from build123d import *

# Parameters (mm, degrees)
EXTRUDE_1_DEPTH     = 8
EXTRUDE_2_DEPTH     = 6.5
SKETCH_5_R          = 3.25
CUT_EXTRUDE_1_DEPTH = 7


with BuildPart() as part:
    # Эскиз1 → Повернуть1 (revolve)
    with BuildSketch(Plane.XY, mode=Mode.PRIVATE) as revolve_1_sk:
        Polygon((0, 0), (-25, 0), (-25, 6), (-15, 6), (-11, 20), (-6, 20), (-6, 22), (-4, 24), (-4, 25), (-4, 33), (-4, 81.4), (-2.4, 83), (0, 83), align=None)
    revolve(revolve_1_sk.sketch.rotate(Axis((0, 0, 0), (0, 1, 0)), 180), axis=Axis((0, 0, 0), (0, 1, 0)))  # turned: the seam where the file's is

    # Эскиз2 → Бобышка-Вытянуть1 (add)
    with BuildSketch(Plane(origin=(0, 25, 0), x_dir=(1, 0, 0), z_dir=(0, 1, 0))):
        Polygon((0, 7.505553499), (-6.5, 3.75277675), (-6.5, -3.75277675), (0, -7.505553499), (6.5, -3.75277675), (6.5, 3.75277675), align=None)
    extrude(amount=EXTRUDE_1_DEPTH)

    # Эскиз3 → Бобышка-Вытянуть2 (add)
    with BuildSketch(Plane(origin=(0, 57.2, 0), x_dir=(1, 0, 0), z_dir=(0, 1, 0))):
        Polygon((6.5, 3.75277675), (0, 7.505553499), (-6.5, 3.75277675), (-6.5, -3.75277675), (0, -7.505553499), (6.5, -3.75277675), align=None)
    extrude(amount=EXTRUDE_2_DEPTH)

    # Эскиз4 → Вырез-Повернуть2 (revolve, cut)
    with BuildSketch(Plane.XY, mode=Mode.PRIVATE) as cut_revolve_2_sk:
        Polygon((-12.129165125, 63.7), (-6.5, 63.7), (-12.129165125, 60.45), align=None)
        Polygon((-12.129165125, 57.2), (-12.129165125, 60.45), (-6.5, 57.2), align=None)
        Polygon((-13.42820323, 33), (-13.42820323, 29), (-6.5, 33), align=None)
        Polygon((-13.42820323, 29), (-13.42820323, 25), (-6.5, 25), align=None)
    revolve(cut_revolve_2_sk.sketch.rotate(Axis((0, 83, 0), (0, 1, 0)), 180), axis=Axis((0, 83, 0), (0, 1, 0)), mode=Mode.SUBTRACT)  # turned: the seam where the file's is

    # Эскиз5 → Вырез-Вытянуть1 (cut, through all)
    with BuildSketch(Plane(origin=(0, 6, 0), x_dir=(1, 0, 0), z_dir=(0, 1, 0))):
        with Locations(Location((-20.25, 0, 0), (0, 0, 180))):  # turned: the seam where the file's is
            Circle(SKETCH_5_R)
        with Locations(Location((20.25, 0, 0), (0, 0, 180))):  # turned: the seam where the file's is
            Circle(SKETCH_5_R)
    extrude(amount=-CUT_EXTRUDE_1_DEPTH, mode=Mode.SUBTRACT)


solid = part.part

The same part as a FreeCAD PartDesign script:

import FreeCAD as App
import Part
import Sketcher
Q = App.Units.Quantity

doc = App.newDocument("Part")
body = doc.addObject("PartDesign::Body", "Body")

sketch1 = doc.addObject("Sketcher::SketchObject", "Sketch")
body.addObject(sketch1)
sketch1.AttachmentSupport = (doc.XY_Plane, [""])
sketch1.MapMode = "FlatFace"
sketch1.addGeometry([
    Part.LineSegment(App.Vector(-25, 0, 0), App.Vector(0, 0, 0)),
    Part.LineSegment(App.Vector(0, 0, 0), App.Vector(0, 83, 0)),
    Part.LineSegment(App.Vector(0, 83, 0), App.Vector(-2.4, 83, 0)),
    Part.LineSegment(App.Vector(-2.4, 83, 0), App.Vector(-4, 81.4, 0)),
    Part.LineSegment(App.Vector(-4, 81.4, 0), App.Vector(-4, 24, 0)),
    Part.LineSegment(App.Vector(-4, 24, 0), App.Vector(-6, 22, 0)),
    Part.LineSegment(App.Vector(-6, 22, 0), App.Vector(-6, 20, 0)),
    Part.LineSegment(App.Vector(-6, 20, 0), App.Vector(-11, 20, 0)),
    Part.LineSegment(App.Vector(-11, 20, 0), App.Vector(-15, 6, 0)),
    Part.LineSegment(App.Vector(-15, 6, 0), App.Vector(-25, 6, 0)),
    Part.LineSegment(App.Vector(-25, 6, 0), App.Vector(-25, 0, 0)),
], False)
sketch1.addConstraint([
    Sketcher.Constraint("Coincident", 0, 2, 1, 1),
    Sketcher.Constraint("Coincident", 1, 2, 2, 1),
    Sketcher.Constraint("Coincident", 2, 2, 3, 1),
    Sketcher.Constraint("Coincident", 3, 2, 4, 1),
    Sketcher.Constraint("Coincident", 4, 2, 5, 1),
    Sketcher.Constraint("Coincident", 5, 2, 6, 1),
    Sketcher.Constraint("Coincident", 6, 2, 7, 1),
    Sketcher.Constraint("Coincident", 7, 2, 8, 1),
    Sketcher.Constraint("Coincident", 8, 2, 9, 1),
    Sketcher.Constraint("Coincident", 9, 2, 10, 1),
    Sketcher.Constraint("Coincident", 10, 2, 0, 1),
    Sketcher.Constraint("Horizontal", 0),
    Sketcher.Constraint("Vertical", 1),
    Sketcher.Constraint("Horizontal", 2),
    Sketcher.Constraint("Vertical", 4),
    Sketcher.Constraint("Vertical", 6),
    Sketcher.Constraint("Horizontal", 7),
    Sketcher.Constraint("Horizontal", 9),
    Sketcher.Constraint("Vertical", 10),
    Sketcher.Constraint("Coincident", 0, 2, -1, 1),
    Sketcher.Constraint("Parallel", 3, 5),
    Sketcher.Constraint("DistanceX", 0, 1, 0, 2, Q("25 mm")),
    Sketcher.Constraint("DistanceX", 7, 2, 7, 1, Q("5 mm")),
    Sketcher.Constraint("DistanceX", 9, 2, 9, 1, Q("10 mm")),
    Sketcher.Constraint("DistanceY", 1, 1, 1, 2, Q("83 mm")),
    Sketcher.Constraint("DistanceY", 6, 2, 6, 1, Q("2 mm")),
    Sketcher.Constraint("DistanceY", 10, 2, 10, 1, Q("6 mm")),
    Sketcher.Constraint("Angle", 3, Q("-135 deg")),
    Sketcher.Constraint("DistanceX", 2, 2, 2, 1, Q("2.4 mm")),
    Sketcher.Constraint("DistanceY", 4, 2, 4, 1, Q("57.4 mm")),
    Sketcher.Constraint("DistanceX", 3, 2, -1, 1, Q("4 mm")),
    Sketcher.Constraint("DistanceX", 5, 2, -1, 1, Q("6 mm")),
])
revolution = doc.addObject("PartDesign::Revolution", "Revolution")
body.addObject(revolution)
revolution.Profile = sketch1
revolution.ReferenceAxis = (sketch1, ["V_Axis"])
revolution.Angle = 360

sketch2 = doc.addObject("Sketcher::SketchObject", "Sketch001")
body.addObject(sketch2)
sketch2.AttachmentSupport = (doc.XZ_Plane, [""])
sketch2.MapMode = "FlatFace"
sketch2.AttachmentOffset = App.Placement(App.Vector(0, 0, -25), App.Rotation())
sketch2.addGeometry([
    Part.LineSegment(App.Vector(0, -8, 0), App.Vector(-6, -4, 0)),
    Part.LineSegment(App.Vector(-6, -4, 0), App.Vector(-6, 4, 0)),
    Part.LineSegment(App.Vector(-6, 4, 0), App.Vector(0, 8, 0)),
    Part.LineSegment(App.Vector(0, 8, 0), App.Vector(6, 4, 0)),
    Part.LineSegment(App.Vector(6, 4, 0), App.Vector(6, -4, 0)),
    Part.LineSegment(App.Vector(6, -4, 0), App.Vector(0, -8, 0)),
], False)
sketch2.addConstraint([
    Sketcher.Constraint("Coincident", 0, 2, 1, 1),
    Sketcher.Constraint("Coincident", 1, 2, 2, 1),
    Sketcher.Constraint("Coincident", 2, 2, 3, 1),
    Sketcher.Constraint("Coincident", 3, 2, 4, 1),
    Sketcher.Constraint("Coincident", 4, 2, 5, 1),
    Sketcher.Constraint("Coincident", 5, 2, 0, 1),
    Sketcher.Constraint("Vertical", 1),
    Sketcher.Constraint("Vertical", 4),
    Sketcher.Constraint("Symmetric", 0, 2, 3, 2, -1, 1),
    Sketcher.Constraint("Symmetric", 2, 2, 5, 2, -1, 1),
    Sketcher.Constraint("PointOnObject", 2, 2, -2),
    Sketcher.Constraint("Parallel", 2, 5),
    Sketcher.Constraint("Horizontal", 1, 2, 3, 2),
    Sketcher.Constraint("Angle", 0, Q("150 deg")),
    Sketcher.Constraint("DistanceX", 1, 2, 3, 2, Q("13 mm")),
    Sketcher.Constraint("DistanceY", 1, 1, 1, 2, Q("7.505554 mm")),
])
pad1 = doc.addObject("PartDesign::Pad", "Pad")
body.addObject(pad1)
pad1.Profile = sketch2
pad1.Length = 8
pad1.Reversed = True

sketch3 = doc.addObject("Sketcher::SketchObject", "Sketch002")
body.addObject(sketch3)
sketch3.AttachmentSupport = (doc.XZ_Plane, [""])
sketch3.MapMode = "FlatFace"
sketch3.AttachmentOffset = App.Placement(App.Vector(0, 0, -57.2), App.Rotation())
sketch3.addGeometry([
    Part.LineSegment(App.Vector(6, -4, 0), App.Vector(0, -8, 0)),
    Part.LineSegment(App.Vector(0, -8, 0), App.Vector(-6, -4, 0)),
    Part.LineSegment(App.Vector(-6, -4, 0), App.Vector(-6, 4, 0)),
    Part.LineSegment(App.Vector(-6, 4, 0), App.Vector(0, 8, 0)),
    Part.LineSegment(App.Vector(0, 8, 0), App.Vector(6, 4, 0)),
    Part.LineSegment(App.Vector(6, 4, 0), App.Vector(6, -4, 0)),
], False)
sketch3.addConstraint([
    Sketcher.Constraint("Coincident", 0, 2, 1, 1),
    Sketcher.Constraint("Coincident", 1, 2, 2, 1),
    Sketcher.Constraint("Coincident", 2, 2, 3, 1),
    Sketcher.Constraint("Coincident", 3, 2, 4, 1),
    Sketcher.Constraint("Coincident", 4, 2, 5, 1),
    Sketcher.Constraint("Coincident", 5, 2, 0, 1),
    Sketcher.Constraint("Vertical", 2),
    Sketcher.Constraint("Vertical", 5),
    Sketcher.Constraint("Symmetric", 0, 2, 3, 2, -1, 1),
    Sketcher.Constraint("Symmetric", 1, 2, 4, 2, -1, 1),
    Sketcher.Constraint("PointOnObject", 0, 2, -2),
    Sketcher.Constraint("Parallel", 0, 3),
    Sketcher.Constraint("Horizontal", 2, 2, 4, 2),
    Sketcher.Constraint("Angle", 0, Q("-150 deg")),
    Sketcher.Constraint("DistanceX", 2, 2, 4, 2, Q("13 mm")),
    Sketcher.Constraint("DistanceY", 2, 1, 2, 2, Q("7.505554 mm")),
])
pad2 = doc.addObject("PartDesign::Pad", "Pad001")
body.addObject(pad2)
pad2.Profile = sketch3
pad2.Length = 6.5
pad2.Reversed = True

sketch4 = doc.addObject("Sketcher::SketchObject", "Sketch003")
body.addObject(sketch4)
sketch4.AttachmentSupport = (doc.XY_Plane, [""])
sketch4.MapMode = "FlatFace"
sketch4.addGeometry([
    Part.LineSegment(App.Vector(-6.5, 63.7, 0), App.Vector(-12.1, 63.7, 0)),
    Part.LineSegment(App.Vector(-12.1, 63.7, 0), App.Vector(-12.1, 60.5, 0)),
    Part.LineSegment(App.Vector(-12.1, 60.5, 0), App.Vector(-6.5, 63.7, 0)),
    Part.LineSegment(App.Vector(-12.1, 60.5, 0), App.Vector(-12.1, 57.2, 0)),
    Part.LineSegment(App.Vector(-12.1, 57.2, 0), App.Vector(-6.5, 57.2, 0)),
    Part.LineSegment(App.Vector(-6.5, 57.2, 0), App.Vector(-12.1, 60.5, 0)),
    Part.LineSegment(App.Vector(-13.4, 33, 0), App.Vector(-13.4, 29, 0)),
    Part.LineSegment(App.Vector(-13.4, 29, 0), App.Vector(-6.5, 33, 0)),
    Part.LineSegment(App.Vector(-6.5, 33, 0), App.Vector(-13.4, 33, 0)),
    Part.LineSegment(App.Vector(-13.4, 29, 0), App.Vector(-13.4, 25, 0)),
    Part.LineSegment(App.Vector(-13.4, 25, 0), App.Vector(-6.5, 25, 0)),
    Part.LineSegment(App.Vector(-6.5, 25, 0), App.Vector(-13.4, 29, 0)),
], False)
sketch4.addConstraint([
    Sketcher.Constraint("Coincident", 0, 2, 1, 1),
    Sketcher.Constraint("Coincident", 1, 2, 2, 1),
    Sketcher.Constraint("Coincident", 2, 2, 0, 1),
    Sketcher.Constraint("Coincident", 3, 2, 4, 1),
    Sketcher.Constraint("Coincident", 4, 2, 5, 1),
    Sketcher.Constraint("Coincident", 5, 2, 3, 1),
    Sketcher.Constraint("Coincident", 6, 2, 7, 1),
    Sketcher.Constraint("Coincident", 7, 2, 8, 1),
    Sketcher.Constraint("Coincident", 8, 2, 6, 1),
    Sketcher.Constraint("Coincident", 9, 2, 10, 1),
    Sketcher.Constraint("Coincident", 10, 2, 11, 1),
    Sketcher.Constraint("Coincident", 11, 2, 9, 1),
    Sketcher.Constraint("Horizontal", 0),
    Sketcher.Constraint("Vertical", 1),
    Sketcher.Constraint("Vertical", 3),
    Sketcher.Constraint("Horizontal", 4),
    Sketcher.Constraint("Vertical", 6),
    Sketcher.Constraint("Horizontal", 8),
    Sketcher.Constraint("Vertical", 9),
    Sketcher.Constraint("Horizontal", 10),
    Sketcher.Constraint("Coincident", 5, 2, 1, 2),
    Sketcher.Constraint("Coincident", 11, 2, 6, 2),
    Sketcher.Constraint("Parallel", 2, 7),
    Sketcher.Constraint("Parallel", 5, 11),
    Sketcher.Constraint("Vertical", 2, 2, 4, 2),
    Sketcher.Constraint("Vertical", 4, 2, 7, 2),
    Sketcher.Constraint("Vertical", 7, 2, 10, 2),
    Sketcher.Constraint("Equal", 1, 3),
    Sketcher.Constraint("DistanceY", 6, 2, 6, 1, Q("4 mm")),
    Sketcher.Constraint("Angle", 2, Q("30 deg")),
    Sketcher.Constraint("DistanceY", -1, 1, 6, 2, Q("29 mm")),
    Sketcher.Constraint("Distance", 2, Q("6.5 mm")),
    Sketcher.Constraint("DistanceY", -1, 1, 0, 2, Q("63.7 mm")),
    Sketcher.Constraint("DistanceX", 2, 2, -1, 1, Q("6.5 mm")),
])
groove = doc.addObject("PartDesign::Groove", "Groove")
body.addObject(groove)
groove.Profile = sketch4
groove.ReferenceAxis = (sketch4, ["V_Axis"])
groove.Angle = 360

sketch5 = doc.addObject("Sketcher::SketchObject", "Sketch004")
body.addObject(sketch5)
sketch5.AttachmentSupport = (doc.XZ_Plane, [""])
sketch5.MapMode = "FlatFace"
sketch5.AttachmentOffset = App.Placement(App.Vector(0, 0, -6), App.Rotation())
sketch5.addGeometry([
    Part.Circle(App.Vector(-20.2, 0, 0), App.Vector(0, 0, 1), 3.2),
    Part.Circle(App.Vector(20.2, 0, 0), App.Vector(0, 0, 1), 3.2),
], False)
sketch5.addConstraint([
    Sketcher.Constraint("Equal", 0, 1),
    Sketcher.Constraint("Symmetric", 0, 3, 1, 3, -1, 1),
    Sketcher.Constraint("PointOnObject", 0, 3, -1),
    Sketcher.Constraint("Diameter", 0, Q("6.5 mm")),
    Sketcher.Constraint("DistanceX", 0, 3, 1, 3, Q("40.5 mm")),
])
pocket1 = doc.addObject("PartDesign::Pocket", "Pocket")
body.addObject(pocket1)
pocket1.Profile = sketch5
pocket1.Type = "ThroughAll"
pocket1.Reversed = True

doc.recompute()
